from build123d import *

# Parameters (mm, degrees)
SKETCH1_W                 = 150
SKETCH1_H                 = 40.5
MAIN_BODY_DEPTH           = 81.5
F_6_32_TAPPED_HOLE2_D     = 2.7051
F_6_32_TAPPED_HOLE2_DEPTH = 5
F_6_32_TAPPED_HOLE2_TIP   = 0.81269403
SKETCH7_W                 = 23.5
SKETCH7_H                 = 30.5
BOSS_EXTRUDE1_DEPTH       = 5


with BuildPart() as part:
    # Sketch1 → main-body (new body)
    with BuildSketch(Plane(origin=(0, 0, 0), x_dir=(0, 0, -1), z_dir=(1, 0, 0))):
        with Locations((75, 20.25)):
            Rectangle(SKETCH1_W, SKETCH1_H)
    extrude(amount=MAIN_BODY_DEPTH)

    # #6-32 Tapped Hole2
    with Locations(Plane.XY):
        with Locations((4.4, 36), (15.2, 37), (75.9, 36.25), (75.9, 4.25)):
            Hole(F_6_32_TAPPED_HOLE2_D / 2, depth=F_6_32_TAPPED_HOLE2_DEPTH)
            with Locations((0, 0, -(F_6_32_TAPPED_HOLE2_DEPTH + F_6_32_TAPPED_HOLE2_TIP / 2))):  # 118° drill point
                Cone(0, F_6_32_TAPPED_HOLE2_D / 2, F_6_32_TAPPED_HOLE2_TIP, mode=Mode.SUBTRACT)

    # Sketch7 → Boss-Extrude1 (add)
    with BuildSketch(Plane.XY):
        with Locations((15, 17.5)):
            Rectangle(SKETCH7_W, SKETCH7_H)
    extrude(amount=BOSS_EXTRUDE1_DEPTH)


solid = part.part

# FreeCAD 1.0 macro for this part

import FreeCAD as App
import Part
import Sketcher
from FreeCAD import Vector

doc = App.newDocument("Part")
body = doc.addObject("PartDesign::Body", "Body")

# Sketch on YZ plane
sketch1 = body.newObject("Sketcher::SketchObject", "Sketch")
sketch1.AttachmentSupport = (doc.getObject("YZ_Plane"), [""])
sketch1.MapMode = "FlatFace"
sketch1.addGeometry([
    Part.LineSegment(Vector(40, 0, 0), Vector(0, 0, 0)),
    Part.LineSegment(Vector(0, 0, 0), Vector(0, -150, 0)),
    Part.LineSegment(Vector(0, -150, 0), Vector(40, -150, 0)),
    Part.LineSegment(Vector(40, -150, 0), Vector(40, 0, 0)),
], False)
sketch1.addConstraint([
    Sketcher.Constraint("Coincident", 0, 2, 1, 1),
    Sketcher.Constraint("Coincident", 1, 2, 2, 1),
    Sketcher.Constraint("Coincident", 2, 2, 3, 1),
    Sketcher.Constraint("Coincident", 3, 2, 0, 1),
    Sketcher.Constraint("Horizontal", 0),
    Sketcher.Constraint("Vertical", 1),
    Sketcher.Constraint("Horizontal", 2),
    Sketcher.Constraint("Vertical", 3),
    Sketcher.Constraint("Coincident", 0, 2, -1, 1),
    Sketcher.Constraint("DistanceY", 1, 2, 1, 1, 150.0),
    Sketcher.Constraint("DistanceX", 0, 2, 0, 1, 40.5),
])
pad1 = body.newObject("PartDesign::Pad", "Pad")
pad1.Profile = sketch1
pad1.Length = 81.5

# Sketch on XY plane
sketch2 = body.newObject("Sketcher::SketchObject", "Sketch001")
sketch2.AttachmentSupport = (doc.getObject("XY_Plane"), [""])
sketch2.MapMode = "FlatFace"
sketch2.addGeometry([
    Part.Circle(Vector(4.4, 36, 0), Vector(0, 0, 1), 1.4),
    Part.Circle(Vector(15.2, 37, 0), Vector(0, 0, 1), 1.4),
    Part.Circle(Vector(75.9, 36.2, 0), Vector(0, 0, 1), 1.4),
    Part.Circle(Vector(75.9, 4.2, 0), Vector(0, 0, 1), 1.4),
], False)
sketch2.addConstraint([
    Sketcher.Constraint("Equal", 0, 1),
    Sketcher.Constraint("Equal", 1, 2),
    Sketcher.Constraint("Equal", 2, 3),
    Sketcher.Constraint("Vertical", 2, 3, 3, 3),
    Sketcher.Constraint("DistanceY", -1, 1, 0, 3, 36.0),
    Sketcher.Constraint("DistanceY", -1, 1, 1, 3, 37.0),
    Sketcher.Constraint("DistanceY", 3, 3, 2, 3, 32.0),
    Sketcher.Constraint("Diameter", 0, 2.7051),
    Sketcher.Constraint("DistanceX", -1, 1, 0, 3, 4.4),
    Sketcher.Constraint("DistanceX", -1, 1, 1, 3, 15.2),
    Sketcher.Constraint("DistanceX", -1, 1, 2, 3, 75.9),
    Sketcher.Constraint("DistanceY", -1, 1, 2, 3, 36.25),
])
doc.recompute()
hole = body.newObject("PartDesign::Hole", "Hole")
hole.Profile = sketch2
hole.ThreadType = "None"
hole.Diameter = 2.7051
hole.DepthType = "Dimension"
hole.Depth = 5
hole.DrillPoint = "Angled"
hole.DrillPointAngle = 118

# Sketch on XY plane
sketch3 = body.newObject("Sketcher::SketchObject", "Sketch002")
sketch3.AttachmentSupport = (doc.getObject("XY_Plane"), [""])
sketch3.MapMode = "FlatFace"
sketch3.addGeometry([
    Part.LineSegment(Vector(3, 33, 0), Vector(3, 2, 0)),
    Part.LineSegment(Vector(3, 2, 0), Vector(27, 2, 0)),
    Part.LineSegment(Vector(27, 2, 0), Vector(27, 33, 0)),
    Part.LineSegment(Vector(27, 33, 0), Vector(3, 33, 0)),
], False)
sketch3.addConstraint([
    Sketcher.Constraint("Coincident", 0, 2, 1, 1),
    Sketcher.Constraint("Coincident", 1, 2, 2, 1),
    Sketcher.Constraint("Coincident", 2, 2, 3, 1),
    Sketcher.Constraint("Coincident", 3, 2, 0, 1),
    Sketcher.Constraint("Vertical", 0),
    Sketcher.Constraint("Horizontal", 1),
    Sketcher.Constraint("Vertical", 2),
    Sketcher.Constraint("Horizontal", 3),
    Sketcher.Constraint("DistanceX", 1, 1, 1, 2, 23.5),
    Sketcher.Constraint("DistanceY", 0, 2, 0, 1, 30.5),
    Sketcher.Constraint("DistanceX", -1, 1, 0, 2, 3.25),
    Sketcher.Constraint("DistanceY", -1, 1, 0, 2, 2.25),
])
pad2 = body.newObject("PartDesign::Pad", "Pad001")
pad2.Profile = sketch3
pad2.Length = 5

doc.recompute()
